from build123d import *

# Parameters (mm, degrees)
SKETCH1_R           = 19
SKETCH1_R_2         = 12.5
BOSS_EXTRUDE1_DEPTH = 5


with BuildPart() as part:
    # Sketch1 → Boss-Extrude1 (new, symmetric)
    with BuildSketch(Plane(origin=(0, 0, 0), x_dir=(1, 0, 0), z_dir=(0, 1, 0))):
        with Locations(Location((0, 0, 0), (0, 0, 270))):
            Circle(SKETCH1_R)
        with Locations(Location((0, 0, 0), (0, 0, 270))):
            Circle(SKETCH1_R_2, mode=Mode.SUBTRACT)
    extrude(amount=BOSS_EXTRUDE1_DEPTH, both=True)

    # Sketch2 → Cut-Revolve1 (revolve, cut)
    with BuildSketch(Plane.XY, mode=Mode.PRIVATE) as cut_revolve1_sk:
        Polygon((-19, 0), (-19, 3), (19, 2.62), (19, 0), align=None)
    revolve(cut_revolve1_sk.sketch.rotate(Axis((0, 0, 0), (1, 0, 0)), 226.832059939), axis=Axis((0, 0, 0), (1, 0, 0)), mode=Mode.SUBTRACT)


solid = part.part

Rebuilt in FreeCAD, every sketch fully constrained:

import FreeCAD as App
import Part
import Sketcher
from FreeCAD import Vector


def add_polygon(sketch, points):
    """Adds a closed chain of lines whose ends are joined by coincident constraints."""
    first, n = sketch.GeometryCount, len(points)
    for a, b in zip(points, points[1:] + points[:1]):
        sketch.addGeometry(Part.LineSegment(App.Vector(*a, 0), App.Vector(*b, 0)), False)
    for i in range(n):
        sketch.addConstraint(Sketcher.Constraint("Coincident", first + i, 2, first + (i + 1) % n, 1))

doc = App.newDocument("Part")
body = doc.addObject("PartDesign::Body", "Body")

# Sketch on XZ plane
sketch1 = body.newObject("Sketcher::SketchObject", "Sketch")
sketch1.AttachmentSupport = (doc.getObject("XZ_Plane"), [""])
sketch1.MapMode = "FlatFace"
sketch1.addGeometry(Part.Circle(Vector(0, 0, 0), Vector(0, 0, 1), 19), False)
sketch1.addGeometry(Part.Circle(Vector(0, 0, 0), Vector(0, 0, 1), 12), False)
sketch1.addConstraint(Sketcher.Constraint("Coincident", 0, 3, -1, 1))
sketch1.addConstraint(Sketcher.Constraint("Coincident", 1, 3, -1, 1))
sketch1.addConstraint(Sketcher.Constraint("Diameter", 0, 38.0))
sketch1.addConstraint(Sketcher.Constraint("Diameter", 1, 25.0))
pad1 = body.newObject("PartDesign::Pad", "Pad")
pad1.Profile = sketch1
pad1.Length = 10
pad1.Midplane = True

# Sketch on XY plane
sketch2 = body.newObject("Sketcher::SketchObject", "Sketch001")
sketch2.AttachmentSupport = (doc.getObject("XY_Plane"), [""])
sketch2.MapMode = "FlatFace"
add_polygon(sketch2, [(-19, 3), (-19, 0), (19, 0), (19, 2.6)])  # lines 0-3
sketch2.addConstraint(Sketcher.Constraint("Vertical", 0))
sketch2.addConstraint(Sketcher.Constraint("Horizontal", 1))
sketch2.addConstraint(Sketcher.Constraint("Vertical", 2))
sketch2.addConstraint(Sketcher.Constraint("Symmetric", 0, 2, 1, 2, -1, 1))
sketch2.addConstraint(Sketcher.Constraint("DistanceX", 1, 1, 1, 2, 38.0))
sketch2.addConstraint(Sketcher.Constraint("DistanceY", 0, 2, 0, 1, 3.0))
sketch2.addConstraint(Sketcher.Constraint("DistanceY", 2, 1, 2, 2, 2.62))
groove = body.newObject("PartDesign::Groove", "Groove")
groove.Profile = sketch2
groove.ReferenceAxis = (sketch2, ["H_Axis"])
groove.Angle = 360

doc.recompute()
